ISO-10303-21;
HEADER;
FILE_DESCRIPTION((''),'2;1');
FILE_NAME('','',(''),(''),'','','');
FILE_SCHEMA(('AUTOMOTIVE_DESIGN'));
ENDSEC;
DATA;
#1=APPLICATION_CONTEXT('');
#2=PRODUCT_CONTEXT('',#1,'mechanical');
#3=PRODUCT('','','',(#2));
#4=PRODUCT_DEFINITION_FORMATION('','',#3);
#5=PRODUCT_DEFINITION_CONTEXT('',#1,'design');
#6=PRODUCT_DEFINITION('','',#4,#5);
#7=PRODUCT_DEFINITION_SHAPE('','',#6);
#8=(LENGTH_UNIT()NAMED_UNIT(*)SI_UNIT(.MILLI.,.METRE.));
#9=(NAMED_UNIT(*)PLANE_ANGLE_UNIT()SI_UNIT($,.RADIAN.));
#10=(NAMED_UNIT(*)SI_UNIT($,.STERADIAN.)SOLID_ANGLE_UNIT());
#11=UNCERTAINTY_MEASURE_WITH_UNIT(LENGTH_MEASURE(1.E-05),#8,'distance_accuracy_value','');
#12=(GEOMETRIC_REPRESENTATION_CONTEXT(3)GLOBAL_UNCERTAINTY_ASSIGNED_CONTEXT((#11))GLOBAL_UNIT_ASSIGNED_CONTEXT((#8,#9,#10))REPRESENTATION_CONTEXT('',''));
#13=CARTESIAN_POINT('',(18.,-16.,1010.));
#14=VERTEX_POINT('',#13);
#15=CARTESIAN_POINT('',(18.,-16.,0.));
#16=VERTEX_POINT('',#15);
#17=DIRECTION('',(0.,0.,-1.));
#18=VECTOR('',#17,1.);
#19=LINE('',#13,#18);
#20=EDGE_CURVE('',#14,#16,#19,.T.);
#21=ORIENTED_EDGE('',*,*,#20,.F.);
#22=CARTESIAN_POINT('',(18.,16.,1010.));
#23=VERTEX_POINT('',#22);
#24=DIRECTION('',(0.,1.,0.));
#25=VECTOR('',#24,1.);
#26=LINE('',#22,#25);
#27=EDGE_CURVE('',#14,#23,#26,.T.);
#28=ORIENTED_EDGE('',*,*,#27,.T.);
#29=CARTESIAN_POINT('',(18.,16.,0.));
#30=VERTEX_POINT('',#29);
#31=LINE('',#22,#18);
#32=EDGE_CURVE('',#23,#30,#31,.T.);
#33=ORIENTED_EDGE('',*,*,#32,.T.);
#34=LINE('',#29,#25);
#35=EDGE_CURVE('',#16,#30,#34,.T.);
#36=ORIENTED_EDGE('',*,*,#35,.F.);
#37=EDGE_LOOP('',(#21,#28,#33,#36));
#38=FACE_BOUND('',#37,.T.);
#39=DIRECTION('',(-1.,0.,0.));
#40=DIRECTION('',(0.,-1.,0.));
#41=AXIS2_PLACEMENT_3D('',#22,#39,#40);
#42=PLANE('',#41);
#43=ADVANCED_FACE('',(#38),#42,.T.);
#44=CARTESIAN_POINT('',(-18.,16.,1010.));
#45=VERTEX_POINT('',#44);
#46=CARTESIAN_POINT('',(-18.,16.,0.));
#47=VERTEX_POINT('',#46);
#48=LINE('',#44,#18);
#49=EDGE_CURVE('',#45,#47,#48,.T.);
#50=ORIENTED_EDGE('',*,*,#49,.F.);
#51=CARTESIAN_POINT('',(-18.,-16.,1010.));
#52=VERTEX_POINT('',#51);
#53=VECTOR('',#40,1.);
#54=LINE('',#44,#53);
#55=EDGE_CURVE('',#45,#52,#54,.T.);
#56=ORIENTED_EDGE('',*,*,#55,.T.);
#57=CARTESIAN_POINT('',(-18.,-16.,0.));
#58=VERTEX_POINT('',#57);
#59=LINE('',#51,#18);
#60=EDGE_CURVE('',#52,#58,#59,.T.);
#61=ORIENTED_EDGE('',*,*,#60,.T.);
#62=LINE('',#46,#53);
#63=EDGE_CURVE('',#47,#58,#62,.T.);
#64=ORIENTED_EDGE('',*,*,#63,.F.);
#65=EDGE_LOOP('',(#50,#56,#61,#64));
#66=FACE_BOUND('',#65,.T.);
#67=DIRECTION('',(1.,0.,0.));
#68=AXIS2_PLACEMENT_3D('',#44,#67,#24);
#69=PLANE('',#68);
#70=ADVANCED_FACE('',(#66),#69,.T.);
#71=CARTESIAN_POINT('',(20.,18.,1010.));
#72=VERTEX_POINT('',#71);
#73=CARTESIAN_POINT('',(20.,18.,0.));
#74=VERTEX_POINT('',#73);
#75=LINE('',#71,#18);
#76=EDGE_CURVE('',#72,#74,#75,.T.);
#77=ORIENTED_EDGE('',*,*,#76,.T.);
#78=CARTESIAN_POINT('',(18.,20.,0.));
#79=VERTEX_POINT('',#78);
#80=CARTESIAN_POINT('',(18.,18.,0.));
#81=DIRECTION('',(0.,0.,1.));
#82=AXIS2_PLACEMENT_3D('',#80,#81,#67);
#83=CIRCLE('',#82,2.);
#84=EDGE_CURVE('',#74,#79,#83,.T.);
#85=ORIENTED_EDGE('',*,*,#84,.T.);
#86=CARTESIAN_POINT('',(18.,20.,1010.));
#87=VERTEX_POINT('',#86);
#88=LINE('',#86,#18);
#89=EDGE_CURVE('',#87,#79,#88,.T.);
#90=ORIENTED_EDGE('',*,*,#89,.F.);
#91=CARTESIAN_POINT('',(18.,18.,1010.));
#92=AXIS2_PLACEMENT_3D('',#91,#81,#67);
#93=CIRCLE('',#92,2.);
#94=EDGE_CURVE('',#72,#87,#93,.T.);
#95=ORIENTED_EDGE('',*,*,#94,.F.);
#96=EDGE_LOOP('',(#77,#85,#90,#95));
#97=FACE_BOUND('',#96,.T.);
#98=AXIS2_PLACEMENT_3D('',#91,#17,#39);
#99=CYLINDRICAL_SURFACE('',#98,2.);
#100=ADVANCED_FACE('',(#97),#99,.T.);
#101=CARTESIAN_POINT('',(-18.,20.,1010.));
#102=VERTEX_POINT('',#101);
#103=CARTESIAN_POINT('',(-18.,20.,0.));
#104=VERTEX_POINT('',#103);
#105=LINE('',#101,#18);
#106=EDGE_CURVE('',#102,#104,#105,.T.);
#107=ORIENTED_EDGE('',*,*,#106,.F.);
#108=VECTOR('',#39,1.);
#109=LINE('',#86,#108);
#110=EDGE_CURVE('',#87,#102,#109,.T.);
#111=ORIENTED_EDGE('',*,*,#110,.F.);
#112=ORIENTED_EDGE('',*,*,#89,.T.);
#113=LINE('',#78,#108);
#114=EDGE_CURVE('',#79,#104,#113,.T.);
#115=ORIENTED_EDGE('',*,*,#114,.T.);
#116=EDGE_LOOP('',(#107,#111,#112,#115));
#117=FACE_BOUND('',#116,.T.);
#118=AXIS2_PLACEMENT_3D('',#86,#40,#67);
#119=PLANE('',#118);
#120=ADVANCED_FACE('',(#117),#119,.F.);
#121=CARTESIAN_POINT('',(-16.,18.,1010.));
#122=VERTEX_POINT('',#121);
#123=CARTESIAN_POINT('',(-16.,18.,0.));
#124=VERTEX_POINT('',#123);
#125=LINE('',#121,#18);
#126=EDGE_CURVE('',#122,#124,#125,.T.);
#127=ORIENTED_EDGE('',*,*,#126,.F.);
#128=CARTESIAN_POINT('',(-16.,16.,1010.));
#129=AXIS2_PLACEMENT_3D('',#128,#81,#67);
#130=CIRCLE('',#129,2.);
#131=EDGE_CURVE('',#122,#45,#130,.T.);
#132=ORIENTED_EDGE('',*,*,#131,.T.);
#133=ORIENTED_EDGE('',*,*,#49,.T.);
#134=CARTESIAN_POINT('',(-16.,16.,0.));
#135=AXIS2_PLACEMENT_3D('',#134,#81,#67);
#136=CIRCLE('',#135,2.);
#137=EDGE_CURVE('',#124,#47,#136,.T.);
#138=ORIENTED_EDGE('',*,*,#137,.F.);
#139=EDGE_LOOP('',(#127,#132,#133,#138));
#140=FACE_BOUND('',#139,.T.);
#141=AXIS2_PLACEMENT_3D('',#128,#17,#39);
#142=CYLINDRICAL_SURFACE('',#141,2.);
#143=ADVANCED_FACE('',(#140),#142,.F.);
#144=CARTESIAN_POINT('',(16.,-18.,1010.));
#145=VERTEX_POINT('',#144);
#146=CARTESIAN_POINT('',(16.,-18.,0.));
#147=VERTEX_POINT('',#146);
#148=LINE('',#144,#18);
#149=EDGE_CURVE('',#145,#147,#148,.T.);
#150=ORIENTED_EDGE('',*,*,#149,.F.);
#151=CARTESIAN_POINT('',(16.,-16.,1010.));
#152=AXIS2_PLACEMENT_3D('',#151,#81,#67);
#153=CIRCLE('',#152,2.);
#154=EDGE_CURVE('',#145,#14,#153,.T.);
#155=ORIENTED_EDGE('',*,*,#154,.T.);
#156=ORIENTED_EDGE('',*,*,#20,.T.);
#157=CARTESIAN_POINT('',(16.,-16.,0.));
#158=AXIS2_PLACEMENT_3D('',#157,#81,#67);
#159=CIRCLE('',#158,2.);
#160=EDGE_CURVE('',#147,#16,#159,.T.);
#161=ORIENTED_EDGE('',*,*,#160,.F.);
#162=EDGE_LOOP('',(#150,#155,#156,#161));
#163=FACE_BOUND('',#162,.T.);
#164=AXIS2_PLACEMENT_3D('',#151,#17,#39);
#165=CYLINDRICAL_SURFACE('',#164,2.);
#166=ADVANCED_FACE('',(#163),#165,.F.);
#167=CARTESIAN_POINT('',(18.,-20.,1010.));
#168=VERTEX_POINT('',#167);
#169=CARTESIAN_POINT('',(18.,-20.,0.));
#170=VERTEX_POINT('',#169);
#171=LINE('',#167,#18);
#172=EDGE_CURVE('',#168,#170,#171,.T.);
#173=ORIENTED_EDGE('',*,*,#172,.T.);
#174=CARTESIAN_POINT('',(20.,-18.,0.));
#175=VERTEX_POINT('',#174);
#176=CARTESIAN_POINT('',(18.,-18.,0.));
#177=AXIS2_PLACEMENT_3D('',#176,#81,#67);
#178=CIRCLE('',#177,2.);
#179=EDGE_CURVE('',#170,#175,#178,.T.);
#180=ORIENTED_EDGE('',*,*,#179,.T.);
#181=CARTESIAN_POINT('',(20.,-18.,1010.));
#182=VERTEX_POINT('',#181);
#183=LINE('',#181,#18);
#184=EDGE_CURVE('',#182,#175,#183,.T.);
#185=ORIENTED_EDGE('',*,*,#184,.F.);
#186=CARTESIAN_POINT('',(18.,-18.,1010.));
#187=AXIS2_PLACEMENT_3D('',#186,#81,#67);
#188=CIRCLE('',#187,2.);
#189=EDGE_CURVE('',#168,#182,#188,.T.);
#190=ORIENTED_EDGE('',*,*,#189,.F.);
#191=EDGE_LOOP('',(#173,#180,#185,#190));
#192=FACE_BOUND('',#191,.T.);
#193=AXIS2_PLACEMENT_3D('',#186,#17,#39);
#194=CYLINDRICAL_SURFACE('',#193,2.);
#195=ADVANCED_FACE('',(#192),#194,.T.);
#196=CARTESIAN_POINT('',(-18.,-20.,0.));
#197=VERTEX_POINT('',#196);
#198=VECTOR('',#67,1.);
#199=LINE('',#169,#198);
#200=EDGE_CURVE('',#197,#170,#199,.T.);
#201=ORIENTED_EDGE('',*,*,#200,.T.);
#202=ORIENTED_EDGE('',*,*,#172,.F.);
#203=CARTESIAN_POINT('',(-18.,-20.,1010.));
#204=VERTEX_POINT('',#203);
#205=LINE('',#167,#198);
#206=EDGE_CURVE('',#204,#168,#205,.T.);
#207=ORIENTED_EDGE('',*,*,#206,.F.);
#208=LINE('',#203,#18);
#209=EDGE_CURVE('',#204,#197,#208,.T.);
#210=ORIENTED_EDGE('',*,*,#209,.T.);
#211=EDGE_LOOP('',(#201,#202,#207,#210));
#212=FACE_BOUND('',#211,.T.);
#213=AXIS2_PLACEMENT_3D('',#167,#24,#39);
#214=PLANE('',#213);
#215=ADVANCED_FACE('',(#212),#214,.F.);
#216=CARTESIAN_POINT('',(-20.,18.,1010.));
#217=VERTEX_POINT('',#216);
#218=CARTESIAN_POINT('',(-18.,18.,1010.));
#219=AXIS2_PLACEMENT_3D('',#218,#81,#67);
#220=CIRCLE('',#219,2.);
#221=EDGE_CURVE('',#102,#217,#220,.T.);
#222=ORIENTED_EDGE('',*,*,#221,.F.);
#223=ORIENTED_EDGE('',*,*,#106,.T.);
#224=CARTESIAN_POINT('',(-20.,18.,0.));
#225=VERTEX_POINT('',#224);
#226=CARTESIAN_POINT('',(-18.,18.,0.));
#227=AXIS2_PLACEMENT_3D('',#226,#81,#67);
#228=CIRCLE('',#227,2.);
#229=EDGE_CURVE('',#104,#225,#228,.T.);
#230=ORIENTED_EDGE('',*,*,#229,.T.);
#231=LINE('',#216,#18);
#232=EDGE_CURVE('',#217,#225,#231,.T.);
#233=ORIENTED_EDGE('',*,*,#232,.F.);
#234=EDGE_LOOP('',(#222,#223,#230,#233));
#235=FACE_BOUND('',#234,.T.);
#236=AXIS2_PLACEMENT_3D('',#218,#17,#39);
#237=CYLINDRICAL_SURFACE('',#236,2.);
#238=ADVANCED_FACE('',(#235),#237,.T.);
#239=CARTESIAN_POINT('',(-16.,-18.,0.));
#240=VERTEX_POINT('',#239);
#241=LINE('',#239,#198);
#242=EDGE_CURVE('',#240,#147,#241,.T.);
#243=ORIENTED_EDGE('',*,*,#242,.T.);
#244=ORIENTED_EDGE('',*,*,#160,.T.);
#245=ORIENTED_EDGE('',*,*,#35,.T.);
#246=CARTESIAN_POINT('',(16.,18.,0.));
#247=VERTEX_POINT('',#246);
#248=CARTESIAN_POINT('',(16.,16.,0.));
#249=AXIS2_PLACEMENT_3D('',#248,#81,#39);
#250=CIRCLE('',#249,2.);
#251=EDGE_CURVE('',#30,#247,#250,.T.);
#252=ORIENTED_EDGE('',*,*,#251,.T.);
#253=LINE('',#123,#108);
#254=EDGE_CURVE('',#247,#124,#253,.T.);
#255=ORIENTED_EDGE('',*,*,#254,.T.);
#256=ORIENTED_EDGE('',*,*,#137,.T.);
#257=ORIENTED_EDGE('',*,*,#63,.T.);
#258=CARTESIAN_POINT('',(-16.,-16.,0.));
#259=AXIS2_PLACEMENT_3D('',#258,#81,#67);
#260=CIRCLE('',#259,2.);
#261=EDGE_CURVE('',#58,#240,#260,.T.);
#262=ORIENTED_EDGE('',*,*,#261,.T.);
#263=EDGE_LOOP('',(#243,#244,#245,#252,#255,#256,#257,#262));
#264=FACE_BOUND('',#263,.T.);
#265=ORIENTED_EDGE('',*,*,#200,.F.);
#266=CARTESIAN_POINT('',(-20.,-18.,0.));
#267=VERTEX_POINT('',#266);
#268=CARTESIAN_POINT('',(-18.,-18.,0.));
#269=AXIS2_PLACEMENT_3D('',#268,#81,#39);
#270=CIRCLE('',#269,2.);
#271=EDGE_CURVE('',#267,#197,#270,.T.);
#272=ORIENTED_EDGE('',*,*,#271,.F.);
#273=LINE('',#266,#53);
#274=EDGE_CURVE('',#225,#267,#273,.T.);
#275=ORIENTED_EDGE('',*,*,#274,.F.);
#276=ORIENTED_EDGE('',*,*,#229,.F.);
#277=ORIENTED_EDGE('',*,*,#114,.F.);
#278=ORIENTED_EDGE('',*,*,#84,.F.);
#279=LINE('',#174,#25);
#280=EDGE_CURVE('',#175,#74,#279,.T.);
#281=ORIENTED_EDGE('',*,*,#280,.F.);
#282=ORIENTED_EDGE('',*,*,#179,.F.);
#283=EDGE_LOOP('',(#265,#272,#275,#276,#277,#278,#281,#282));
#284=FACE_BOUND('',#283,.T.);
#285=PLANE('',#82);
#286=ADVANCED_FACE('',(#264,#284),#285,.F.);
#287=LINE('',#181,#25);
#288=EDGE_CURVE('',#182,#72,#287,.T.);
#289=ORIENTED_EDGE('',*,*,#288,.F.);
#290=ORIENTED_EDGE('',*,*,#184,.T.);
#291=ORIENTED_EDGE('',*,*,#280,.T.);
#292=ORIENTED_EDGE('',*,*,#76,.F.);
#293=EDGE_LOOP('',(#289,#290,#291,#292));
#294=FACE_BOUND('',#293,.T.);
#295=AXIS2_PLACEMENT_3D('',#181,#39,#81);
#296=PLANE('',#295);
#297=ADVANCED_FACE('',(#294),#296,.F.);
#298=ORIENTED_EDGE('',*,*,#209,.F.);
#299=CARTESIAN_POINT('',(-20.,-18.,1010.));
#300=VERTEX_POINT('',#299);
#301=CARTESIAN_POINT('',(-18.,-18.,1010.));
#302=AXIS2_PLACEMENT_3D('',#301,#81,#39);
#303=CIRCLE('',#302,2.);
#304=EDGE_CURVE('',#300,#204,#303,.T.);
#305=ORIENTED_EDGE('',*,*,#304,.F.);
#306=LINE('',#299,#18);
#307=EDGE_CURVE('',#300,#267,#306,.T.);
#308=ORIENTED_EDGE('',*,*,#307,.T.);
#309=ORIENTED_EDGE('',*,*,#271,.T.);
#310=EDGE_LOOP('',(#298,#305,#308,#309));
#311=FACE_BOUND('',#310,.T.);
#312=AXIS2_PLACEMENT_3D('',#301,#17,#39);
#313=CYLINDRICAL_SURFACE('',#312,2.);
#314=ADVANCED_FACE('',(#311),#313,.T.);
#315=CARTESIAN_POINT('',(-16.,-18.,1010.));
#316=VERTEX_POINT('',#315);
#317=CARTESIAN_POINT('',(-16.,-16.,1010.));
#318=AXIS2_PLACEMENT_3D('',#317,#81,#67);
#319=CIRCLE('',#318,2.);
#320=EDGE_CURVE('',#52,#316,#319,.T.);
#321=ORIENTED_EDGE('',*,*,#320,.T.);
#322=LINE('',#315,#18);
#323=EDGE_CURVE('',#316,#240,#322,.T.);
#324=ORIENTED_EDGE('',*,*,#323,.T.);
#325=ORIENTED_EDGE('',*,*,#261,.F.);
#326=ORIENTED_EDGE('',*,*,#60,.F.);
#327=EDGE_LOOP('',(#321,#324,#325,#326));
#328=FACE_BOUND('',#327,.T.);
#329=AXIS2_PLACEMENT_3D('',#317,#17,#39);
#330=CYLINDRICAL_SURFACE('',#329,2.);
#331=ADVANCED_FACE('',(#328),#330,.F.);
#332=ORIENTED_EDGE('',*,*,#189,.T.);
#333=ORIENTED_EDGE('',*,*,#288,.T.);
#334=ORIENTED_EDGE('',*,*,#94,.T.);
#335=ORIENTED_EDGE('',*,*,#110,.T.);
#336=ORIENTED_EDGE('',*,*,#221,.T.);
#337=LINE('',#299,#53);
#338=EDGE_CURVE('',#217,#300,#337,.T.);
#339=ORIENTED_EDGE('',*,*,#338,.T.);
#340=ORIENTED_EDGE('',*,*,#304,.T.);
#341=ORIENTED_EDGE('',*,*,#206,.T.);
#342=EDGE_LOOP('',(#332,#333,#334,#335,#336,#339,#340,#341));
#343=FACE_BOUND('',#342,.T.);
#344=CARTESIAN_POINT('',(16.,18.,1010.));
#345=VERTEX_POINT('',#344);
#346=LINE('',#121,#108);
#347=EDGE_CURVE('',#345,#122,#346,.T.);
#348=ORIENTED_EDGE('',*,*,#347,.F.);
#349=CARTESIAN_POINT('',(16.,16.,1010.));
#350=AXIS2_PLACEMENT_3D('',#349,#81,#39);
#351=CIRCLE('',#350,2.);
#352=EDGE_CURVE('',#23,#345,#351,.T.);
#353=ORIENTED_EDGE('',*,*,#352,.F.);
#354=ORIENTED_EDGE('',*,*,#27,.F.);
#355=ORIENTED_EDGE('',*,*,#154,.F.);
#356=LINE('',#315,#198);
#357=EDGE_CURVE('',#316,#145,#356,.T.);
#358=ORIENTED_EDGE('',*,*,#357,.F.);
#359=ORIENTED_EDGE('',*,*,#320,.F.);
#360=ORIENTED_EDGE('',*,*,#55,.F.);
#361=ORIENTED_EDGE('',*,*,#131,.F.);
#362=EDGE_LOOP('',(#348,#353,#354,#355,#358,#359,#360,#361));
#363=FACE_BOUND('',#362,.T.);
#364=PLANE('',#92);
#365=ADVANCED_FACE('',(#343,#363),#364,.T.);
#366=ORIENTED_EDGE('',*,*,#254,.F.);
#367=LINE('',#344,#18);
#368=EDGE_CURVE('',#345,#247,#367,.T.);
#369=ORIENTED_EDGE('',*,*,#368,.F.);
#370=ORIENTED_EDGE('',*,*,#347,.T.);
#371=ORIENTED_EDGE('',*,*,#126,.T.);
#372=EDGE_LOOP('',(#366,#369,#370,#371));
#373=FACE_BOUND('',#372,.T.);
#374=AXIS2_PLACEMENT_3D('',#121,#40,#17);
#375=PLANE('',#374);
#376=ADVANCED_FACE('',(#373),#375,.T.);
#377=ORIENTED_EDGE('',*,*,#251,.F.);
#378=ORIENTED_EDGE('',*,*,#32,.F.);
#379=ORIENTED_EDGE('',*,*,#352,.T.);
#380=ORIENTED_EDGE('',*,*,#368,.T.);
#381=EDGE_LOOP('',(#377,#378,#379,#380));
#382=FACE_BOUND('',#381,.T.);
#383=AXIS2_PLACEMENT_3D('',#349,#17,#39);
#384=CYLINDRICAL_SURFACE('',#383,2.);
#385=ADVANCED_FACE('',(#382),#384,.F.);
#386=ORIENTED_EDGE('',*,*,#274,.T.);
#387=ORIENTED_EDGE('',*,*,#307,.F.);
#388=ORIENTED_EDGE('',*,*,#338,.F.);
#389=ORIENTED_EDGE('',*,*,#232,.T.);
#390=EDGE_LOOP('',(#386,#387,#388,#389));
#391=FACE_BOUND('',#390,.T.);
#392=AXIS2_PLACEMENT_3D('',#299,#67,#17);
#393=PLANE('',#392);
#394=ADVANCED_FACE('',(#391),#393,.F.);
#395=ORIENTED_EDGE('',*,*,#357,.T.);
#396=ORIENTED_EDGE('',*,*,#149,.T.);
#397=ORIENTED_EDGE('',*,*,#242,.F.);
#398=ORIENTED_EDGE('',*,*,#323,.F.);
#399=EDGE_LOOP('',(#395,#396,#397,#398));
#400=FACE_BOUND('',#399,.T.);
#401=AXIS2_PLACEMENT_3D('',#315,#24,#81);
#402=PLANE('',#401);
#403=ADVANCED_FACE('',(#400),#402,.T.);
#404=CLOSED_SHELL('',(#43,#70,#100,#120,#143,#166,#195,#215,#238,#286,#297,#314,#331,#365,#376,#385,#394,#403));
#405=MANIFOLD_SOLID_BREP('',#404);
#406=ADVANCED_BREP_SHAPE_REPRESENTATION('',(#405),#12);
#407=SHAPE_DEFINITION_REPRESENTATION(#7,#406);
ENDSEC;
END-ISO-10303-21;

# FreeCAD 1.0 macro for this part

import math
import FreeCAD as App
import Part
import Sketcher

V = App.Vector
Q = App.Units.Quantity

doc = App.newDocument("Part")
body = doc.addObject("PartDesign::Body", "Body")

sketch1 = body.newObject("Sketcher::SketchObject", "Sketch")
sketch1.AttachmentSupport = (doc.getObject("XY_Plane"), [""])
sketch1.MapMode = "FlatFace"
sketch1.addGeometry([
    Part.LineSegment(V(-18, -20, 0), V(18, -20, 0)),
    Part.ArcOfCircle(Part.Circle(V(18, -18, 0), V(0, 0, 1), 2), math.radians(-90), math.radians(0)),
    Part.LineSegment(V(20, -18, 0), V(20, 18, 0)),
    Part.ArcOfCircle(Part.Circle(V(18, 18, 0), V(0, 0, 1), 2), math.radians(0), math.radians(90)),
    Part.LineSegment(V(18, 20, 0), V(-18, 20, 0)),
    Part.ArcOfCircle(Part.Circle(V(-18, 18, 0), V(0, 0, 1), 2), math.radians(90), math.radians(180)),
    Part.LineSegment(V(-20, 18, 0), V(-20, -18, 0)),
    Part.ArcOfCircle(Part.Circle(V(-18, -18, 0), V(0, 0, 1), 2), math.radians(-180), math.radians(-90)),
    Part.LineSegment(V(-16, 18, 0), V(16, 18, 0)),
    Part.ArcOfCircle(Part.Circle(V(16, 16, 0), V(0, 0, 1), 2), math.radians(0), math.radians(90)),
    Part.LineSegment(V(18, 16, 0), V(18, -16, 0)),
    Part.ArcOfCircle(Part.Circle(V(16, -16, 0), V(0, 0, 1), 2), math.radians(-90), math.radians(0)),
    Part.LineSegment(V(16, -18, 0), V(-16, -18, 0)),
    Part.ArcOfCircle(Part.Circle(V(-16, -16, 0), V(0, 0, 1), 2), math.radians(-180), math.radians(-90)),
    Part.LineSegment(V(-18, -16, 0), V(-18, 16, 0)),
    Part.ArcOfCircle(Part.Circle(V(-16, 16, 0), V(0, 0, 1), 2), math.radians(90), math.radians(180)),
], False)
sketch1.addConstraint([
    Sketcher.Constraint("Tangent", 0, 2, 1, 1),
    Sketcher.Constraint("Tangent", 1, 2, 2, 1),
    Sketcher.Constraint("Tangent", 2, 2, 3, 1),
    Sketcher.Constraint("Tangent", 3, 2, 4, 1),
    Sketcher.Constraint("Tangent", 4, 2, 5, 1),
    Sketcher.Constraint("Tangent", 5, 2, 6, 1),
    Sketcher.Constraint("Tangent", 6, 2, 7, 1),
    Sketcher.Constraint("Tangent", 7, 2, 0, 1),
    Sketcher.Constraint("Tangent", 8, 2, 9, 2),
    Sketcher.Constraint("Tangent", 9, 1, 10, 1),
    Sketcher.Constraint("Tangent", 10, 2, 11, 2),
    Sketcher.Constraint("Tangent", 11, 1, 12, 1),
    Sketcher.Constraint("Tangent", 12, 2, 13, 2),
    Sketcher.Constraint("Tangent", 13, 1, 14, 1),
    Sketcher.Constraint("Tangent", 14, 2, 15, 2),
    Sketcher.Constraint("Tangent", 15, 1, 8, 1),
    Sketcher.Constraint("Horizontal", 0),
    Sketcher.Constraint("Vertical", 2),
    Sketcher.Constraint("Horizontal", 4),
    Sketcher.Constraint("Vertical", 6),
    Sketcher.Constraint("Horizontal", 8),
    Sketcher.Constraint("Vertical", 10),
    Sketcher.Constraint("Horizontal", 12),
    Sketcher.Constraint("Vertical", 14),
    Sketcher.Constraint("Equal", 1, 3),
    Sketcher.Constraint("Equal", 3, 5),
    Sketcher.Constraint("Equal", 5, 7),
    Sketcher.Constraint("Equal", 7, 9),
    Sketcher.Constraint("Equal", 9, 11),
    Sketcher.Constraint("Equal", 11, 13),
    Sketcher.Constraint("Equal", 13, 15),
    Sketcher.Constraint("Symmetric", 1, 3, 5, 3, -1, 1),
    Sketcher.Constraint("Symmetric", 9, 3, 13, 3, -1, 1),
    Sketcher.Constraint("Horizontal", 5, 2, 8, 2),
    Sketcher.Constraint("Vertical", 3, 2, 9, 1),
    Sketcher.Constraint("Equal", 4, 2),
    Sketcher.Constraint("Radius", 1, Q("2 mm")),
    Sketcher.Constraint("DistanceX", 0, 1, 0, 2, Q("36 mm")),
])
pad1 = body.newObject("PartDesign::Pad", "Pad")
pad1.Profile = sketch1
pad1.Length = 1010

doc.recompute()
